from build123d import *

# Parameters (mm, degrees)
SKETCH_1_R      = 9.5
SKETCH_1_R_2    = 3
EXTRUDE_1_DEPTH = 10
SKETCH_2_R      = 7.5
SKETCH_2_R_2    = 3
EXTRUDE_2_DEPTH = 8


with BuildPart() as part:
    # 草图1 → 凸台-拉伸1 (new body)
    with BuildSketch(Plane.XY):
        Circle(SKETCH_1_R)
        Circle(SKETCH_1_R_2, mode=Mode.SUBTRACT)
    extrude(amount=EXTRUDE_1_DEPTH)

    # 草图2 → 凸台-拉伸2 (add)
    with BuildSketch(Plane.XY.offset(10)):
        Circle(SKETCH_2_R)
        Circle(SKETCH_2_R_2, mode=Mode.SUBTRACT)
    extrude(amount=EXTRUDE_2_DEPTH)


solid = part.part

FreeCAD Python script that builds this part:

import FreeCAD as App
import Part
import Sketcher
from FreeCAD import Vector
Q = App.Units.Quantity

doc = App.newDocument("Part")
body = doc.addObject("PartDesign::Body", "Body")

# Sketch on XY plane
sketch1 = body.newObject("Sketcher::SketchObject", "Sketch")
sketch1.AttachmentSupport = (doc.getObject("XY_Plane"), [""])
sketch1.MapMode = "FlatFace"
sketch1.addGeometry([
    Part.Circle(Vector(0, 0, 0), Vector(0, 0, 1), 9.5),
    Part.Circle(Vector(0, 0, 0), Vector(0, 0, 1), 3),
], False)
sketch1.addConstraint([
    Sketcher.Constraint("Coincident", 0, 3, -1, 1),
    Sketcher.Constraint("Coincident", 1, 3, -1, 1),
    Sketcher.Constraint("Diameter", 0, Q("19 mm")),
    Sketcher.Constraint("Diameter", 1, Q("6 mm")),
])
pad1 = body.newObject("PartDesign::Pad", "Pad")
pad1.Profile = sketch1
pad1.Length = 10

# Sketch on XY plane
sketch2 = body.newObject("Sketcher::SketchObject", "Sketch001")
sketch2.AttachmentSupport = (doc.getObject("XY_Plane"), [""])
sketch2.MapMode = "FlatFace"
sketch2.AttachmentOffset = App.Placement(Vector(0, 0, 10), App.Rotation())
sketch2.addGeometry([
    Part.Circle(Vector(0, 0, 0), Vector(0, 0, 1), 7.5),
    Part.Circle(Vector(0, 0, 0), Vector(0, 0, 1), 3),
], False)
sketch2.addConstraint([
    Sketcher.Constraint("Coincident", 0, 3, -1, 1),
    Sketcher.Constraint("Coincident", 1, 3, -1, 1),
    Sketcher.Constraint("Diameter", 0, Q("15 mm")),
    Sketcher.Constraint("Diameter", 1, Q("6 mm")),
])
pad2 = body.newObject("PartDesign::Pad", "Pad001")
pad2.Profile = sketch2
pad2.Length = 8

doc.recompute()
